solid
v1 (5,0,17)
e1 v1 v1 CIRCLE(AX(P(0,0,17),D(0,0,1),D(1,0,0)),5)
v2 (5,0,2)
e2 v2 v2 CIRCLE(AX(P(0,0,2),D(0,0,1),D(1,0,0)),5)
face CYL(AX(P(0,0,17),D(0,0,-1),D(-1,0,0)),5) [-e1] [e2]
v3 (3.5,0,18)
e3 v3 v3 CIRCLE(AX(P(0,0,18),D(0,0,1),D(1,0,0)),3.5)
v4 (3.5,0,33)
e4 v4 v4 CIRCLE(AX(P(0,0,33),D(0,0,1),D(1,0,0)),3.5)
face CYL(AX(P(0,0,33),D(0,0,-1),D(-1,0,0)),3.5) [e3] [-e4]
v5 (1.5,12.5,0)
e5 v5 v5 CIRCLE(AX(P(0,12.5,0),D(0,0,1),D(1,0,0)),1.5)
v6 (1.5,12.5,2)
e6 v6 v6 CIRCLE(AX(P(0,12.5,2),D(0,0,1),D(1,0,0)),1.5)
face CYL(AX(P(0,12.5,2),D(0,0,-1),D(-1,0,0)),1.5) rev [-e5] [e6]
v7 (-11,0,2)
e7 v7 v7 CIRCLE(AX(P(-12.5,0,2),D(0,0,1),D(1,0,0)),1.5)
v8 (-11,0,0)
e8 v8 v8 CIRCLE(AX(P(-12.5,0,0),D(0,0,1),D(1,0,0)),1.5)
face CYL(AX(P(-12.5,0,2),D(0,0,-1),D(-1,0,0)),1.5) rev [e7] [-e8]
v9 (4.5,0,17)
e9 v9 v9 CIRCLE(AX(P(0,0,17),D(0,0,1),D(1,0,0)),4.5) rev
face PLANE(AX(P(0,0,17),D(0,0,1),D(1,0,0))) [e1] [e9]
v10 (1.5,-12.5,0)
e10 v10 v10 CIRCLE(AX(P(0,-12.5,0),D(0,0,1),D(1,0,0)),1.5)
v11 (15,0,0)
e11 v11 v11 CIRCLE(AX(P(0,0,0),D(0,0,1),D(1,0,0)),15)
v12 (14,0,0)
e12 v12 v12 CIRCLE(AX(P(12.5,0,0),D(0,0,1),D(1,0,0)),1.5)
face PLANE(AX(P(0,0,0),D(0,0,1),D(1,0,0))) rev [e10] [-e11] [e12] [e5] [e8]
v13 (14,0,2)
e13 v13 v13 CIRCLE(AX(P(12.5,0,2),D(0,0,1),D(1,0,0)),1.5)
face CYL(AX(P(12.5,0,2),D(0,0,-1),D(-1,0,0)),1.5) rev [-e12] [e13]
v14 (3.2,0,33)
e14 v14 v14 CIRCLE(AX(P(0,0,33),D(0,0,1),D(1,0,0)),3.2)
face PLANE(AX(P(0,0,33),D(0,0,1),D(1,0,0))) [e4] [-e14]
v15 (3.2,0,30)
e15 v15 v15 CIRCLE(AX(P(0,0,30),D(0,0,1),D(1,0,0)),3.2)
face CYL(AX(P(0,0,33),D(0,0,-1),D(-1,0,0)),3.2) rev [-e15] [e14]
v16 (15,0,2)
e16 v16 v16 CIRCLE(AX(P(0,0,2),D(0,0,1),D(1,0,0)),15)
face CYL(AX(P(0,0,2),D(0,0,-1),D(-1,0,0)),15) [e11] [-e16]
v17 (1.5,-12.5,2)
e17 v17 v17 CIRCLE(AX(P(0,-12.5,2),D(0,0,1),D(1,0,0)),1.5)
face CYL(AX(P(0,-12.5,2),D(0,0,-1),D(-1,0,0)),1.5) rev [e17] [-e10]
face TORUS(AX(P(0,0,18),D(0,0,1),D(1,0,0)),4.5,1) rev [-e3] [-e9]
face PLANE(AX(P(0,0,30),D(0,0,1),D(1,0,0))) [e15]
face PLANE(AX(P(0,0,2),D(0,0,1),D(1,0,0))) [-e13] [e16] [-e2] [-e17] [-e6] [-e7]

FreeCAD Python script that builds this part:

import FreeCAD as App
import Part
import Sketcher

V = App.Vector
Q = App.Units.Quantity


def edges_at(feature, points):
    """Names of the edges that pass closest to the given points."""
    edges = feature.Shape.Edges
    near = lambda p: min(range(len(edges)), key=lambda i: edges[i].distToShape(Part.Vertex(*p))[0])
    return sorted({f"Edge{near(p) + 1}" for p in points})

doc = App.newDocument("Part")
body = doc.addObject("PartDesign::Body", "Body")

# Sketch on XY plane
sketch1 = body.newObject("Sketcher::SketchObject", "Sketch")
sketch1.AttachmentSupport = (doc.getObject("XY_Plane"), [""])
sketch1.MapMode = "FlatFace"
sketch1.addGeometry([
    Part.Circle(V(0, 0, 0), V(0, 0, 1), 15),  # 0
    Part.Circle(V(0, -12.5, 0), V(0, 0, 1), 1.5),  # 1
    Part.Circle(V(-12.5, 0, 0), V(0, 0, 1), 1.5),  # 2
    Part.Circle(V(0, 0, 0), V(0, 0, 1), 5),  # 3
    Part.Circle(V(12.5, 0, 0), V(0, 0, 1), 1.5),  # 4
    Part.Circle(V(0, 12.5, 0), V(0, 0, 1), 1.5),  # 5
], False)
sketch1.addConstraint([
    Sketcher.Constraint("Coincident", 0, 3, -1, 1),
    Sketcher.Constraint("Coincident", 3, 3, -1, 1),
    Sketcher.Constraint("Equal", 1, 2),
    Sketcher.Constraint("Equal", 2, 4),
    Sketcher.Constraint("Equal", 4, 5),
    Sketcher.Constraint("Symmetric", 2, 3, 4, 3, -1, 1),
    Sketcher.Constraint("Symmetric", 1, 3, 5, 3, -1, 1),
    Sketcher.Constraint("PointOnObject", 1, 3, -2),
    Sketcher.Constraint("PointOnObject", 2, 3, -1),
    Sketcher.Constraint("Diameter", 0, Q("30 mm")),
    Sketcher.Constraint("Diameter", 1, Q("3 mm")),
    Sketcher.Constraint("Diameter", 3, Q("10 mm")),
    Sketcher.Constraint("DistanceX", 2, 3, 4, 3, Q("25 mm")),
    Sketcher.Constraint("DistanceY", 1, 3, 5, 3, Q("25 mm")),
])
pad1 = body.newObject("PartDesign::Pad", "Pad")
pad1.Profile = sketch1
pad1.Length = 2

# Sketch on XY plane
sketch2 = body.newObject("Sketcher::SketchObject", "Sketch001")
sketch2.AttachmentSupport = (doc.getObject("XY_Plane"), [""])
sketch2.MapMode = "FlatFace"
sketch2.addGeometry(Part.Circle(V(0, 0, 0), V(0, 0, 1), 5), False)
sketch2.addConstraint([
    Sketcher.Constraint("Coincident", 0, 3, -1, 1),
    Sketcher.Constraint("Diameter", 0, Q("10 mm")),
])
pad2 = body.newObject("PartDesign::Pad", "Pad001")
pad2.Profile = sketch2
pad2.Length = 17

# Sketch on XY plane
sketch3 = body.newObject("Sketcher::SketchObject", "Sketch002")
sketch3.AttachmentSupport = (doc.getObject("XY_Plane"), [""])
sketch3.MapMode = "FlatFace"
sketch3.AttachmentOffset = App.Placement(V(0, 0, 17), App.Rotation())
sketch3.addGeometry([
    Part.Circle(V(0, 0, 0), V(0, 0, 1), 3.5),
    Part.Circle(V(0, 0, 0), V(0, 0, 1), 3.2),
], False)
sketch3.addConstraint([
    Sketcher.Constraint("Coincident", 0, 3, -1, 1),
    Sketcher.Constraint("Coincident", 1, 3, -1, 1),
    Sketcher.Constraint("Diameter", 0, Q("7 mm")),
    Sketcher.Constraint("Diameter", 1, Q("6.4 mm")),
])
pad3 = body.newObject("PartDesign::Pad", "Pad002")
pad3.Profile = sketch3
pad3.Length = 16

# Sketch on XY plane
sketch4 = body.newObject("Sketcher::SketchObject", "Sketch003")
sketch4.AttachmentSupport = (doc.getObject("XY_Plane"), [""])
sketch4.MapMode = "FlatFace"
sketch4.AttachmentOffset = App.Placement(V(0, 0, 17), App.Rotation())
sketch4.addGeometry(Part.Circle(V(0, 0, 0), V(0, 0, 1), 3.2), False)
sketch4.addConstraint([
    Sketcher.Constraint("Coincident", 0, 3, -1, 1),
    Sketcher.Constraint("Diameter", 0, Q("6.4 mm")),
])
pad4 = body.newObject("PartDesign::Pad", "Pad003")
pad4.Profile = sketch4
pad4.Length = 13
doc.recompute()

fillet = body.newObject("PartDesign::Fillet", "Fillet")
fillet.Base = (pad4, edges_at(pad4, [(-3.5, 0, 17)]))
fillet.Radius = 1

doc.recompute()
